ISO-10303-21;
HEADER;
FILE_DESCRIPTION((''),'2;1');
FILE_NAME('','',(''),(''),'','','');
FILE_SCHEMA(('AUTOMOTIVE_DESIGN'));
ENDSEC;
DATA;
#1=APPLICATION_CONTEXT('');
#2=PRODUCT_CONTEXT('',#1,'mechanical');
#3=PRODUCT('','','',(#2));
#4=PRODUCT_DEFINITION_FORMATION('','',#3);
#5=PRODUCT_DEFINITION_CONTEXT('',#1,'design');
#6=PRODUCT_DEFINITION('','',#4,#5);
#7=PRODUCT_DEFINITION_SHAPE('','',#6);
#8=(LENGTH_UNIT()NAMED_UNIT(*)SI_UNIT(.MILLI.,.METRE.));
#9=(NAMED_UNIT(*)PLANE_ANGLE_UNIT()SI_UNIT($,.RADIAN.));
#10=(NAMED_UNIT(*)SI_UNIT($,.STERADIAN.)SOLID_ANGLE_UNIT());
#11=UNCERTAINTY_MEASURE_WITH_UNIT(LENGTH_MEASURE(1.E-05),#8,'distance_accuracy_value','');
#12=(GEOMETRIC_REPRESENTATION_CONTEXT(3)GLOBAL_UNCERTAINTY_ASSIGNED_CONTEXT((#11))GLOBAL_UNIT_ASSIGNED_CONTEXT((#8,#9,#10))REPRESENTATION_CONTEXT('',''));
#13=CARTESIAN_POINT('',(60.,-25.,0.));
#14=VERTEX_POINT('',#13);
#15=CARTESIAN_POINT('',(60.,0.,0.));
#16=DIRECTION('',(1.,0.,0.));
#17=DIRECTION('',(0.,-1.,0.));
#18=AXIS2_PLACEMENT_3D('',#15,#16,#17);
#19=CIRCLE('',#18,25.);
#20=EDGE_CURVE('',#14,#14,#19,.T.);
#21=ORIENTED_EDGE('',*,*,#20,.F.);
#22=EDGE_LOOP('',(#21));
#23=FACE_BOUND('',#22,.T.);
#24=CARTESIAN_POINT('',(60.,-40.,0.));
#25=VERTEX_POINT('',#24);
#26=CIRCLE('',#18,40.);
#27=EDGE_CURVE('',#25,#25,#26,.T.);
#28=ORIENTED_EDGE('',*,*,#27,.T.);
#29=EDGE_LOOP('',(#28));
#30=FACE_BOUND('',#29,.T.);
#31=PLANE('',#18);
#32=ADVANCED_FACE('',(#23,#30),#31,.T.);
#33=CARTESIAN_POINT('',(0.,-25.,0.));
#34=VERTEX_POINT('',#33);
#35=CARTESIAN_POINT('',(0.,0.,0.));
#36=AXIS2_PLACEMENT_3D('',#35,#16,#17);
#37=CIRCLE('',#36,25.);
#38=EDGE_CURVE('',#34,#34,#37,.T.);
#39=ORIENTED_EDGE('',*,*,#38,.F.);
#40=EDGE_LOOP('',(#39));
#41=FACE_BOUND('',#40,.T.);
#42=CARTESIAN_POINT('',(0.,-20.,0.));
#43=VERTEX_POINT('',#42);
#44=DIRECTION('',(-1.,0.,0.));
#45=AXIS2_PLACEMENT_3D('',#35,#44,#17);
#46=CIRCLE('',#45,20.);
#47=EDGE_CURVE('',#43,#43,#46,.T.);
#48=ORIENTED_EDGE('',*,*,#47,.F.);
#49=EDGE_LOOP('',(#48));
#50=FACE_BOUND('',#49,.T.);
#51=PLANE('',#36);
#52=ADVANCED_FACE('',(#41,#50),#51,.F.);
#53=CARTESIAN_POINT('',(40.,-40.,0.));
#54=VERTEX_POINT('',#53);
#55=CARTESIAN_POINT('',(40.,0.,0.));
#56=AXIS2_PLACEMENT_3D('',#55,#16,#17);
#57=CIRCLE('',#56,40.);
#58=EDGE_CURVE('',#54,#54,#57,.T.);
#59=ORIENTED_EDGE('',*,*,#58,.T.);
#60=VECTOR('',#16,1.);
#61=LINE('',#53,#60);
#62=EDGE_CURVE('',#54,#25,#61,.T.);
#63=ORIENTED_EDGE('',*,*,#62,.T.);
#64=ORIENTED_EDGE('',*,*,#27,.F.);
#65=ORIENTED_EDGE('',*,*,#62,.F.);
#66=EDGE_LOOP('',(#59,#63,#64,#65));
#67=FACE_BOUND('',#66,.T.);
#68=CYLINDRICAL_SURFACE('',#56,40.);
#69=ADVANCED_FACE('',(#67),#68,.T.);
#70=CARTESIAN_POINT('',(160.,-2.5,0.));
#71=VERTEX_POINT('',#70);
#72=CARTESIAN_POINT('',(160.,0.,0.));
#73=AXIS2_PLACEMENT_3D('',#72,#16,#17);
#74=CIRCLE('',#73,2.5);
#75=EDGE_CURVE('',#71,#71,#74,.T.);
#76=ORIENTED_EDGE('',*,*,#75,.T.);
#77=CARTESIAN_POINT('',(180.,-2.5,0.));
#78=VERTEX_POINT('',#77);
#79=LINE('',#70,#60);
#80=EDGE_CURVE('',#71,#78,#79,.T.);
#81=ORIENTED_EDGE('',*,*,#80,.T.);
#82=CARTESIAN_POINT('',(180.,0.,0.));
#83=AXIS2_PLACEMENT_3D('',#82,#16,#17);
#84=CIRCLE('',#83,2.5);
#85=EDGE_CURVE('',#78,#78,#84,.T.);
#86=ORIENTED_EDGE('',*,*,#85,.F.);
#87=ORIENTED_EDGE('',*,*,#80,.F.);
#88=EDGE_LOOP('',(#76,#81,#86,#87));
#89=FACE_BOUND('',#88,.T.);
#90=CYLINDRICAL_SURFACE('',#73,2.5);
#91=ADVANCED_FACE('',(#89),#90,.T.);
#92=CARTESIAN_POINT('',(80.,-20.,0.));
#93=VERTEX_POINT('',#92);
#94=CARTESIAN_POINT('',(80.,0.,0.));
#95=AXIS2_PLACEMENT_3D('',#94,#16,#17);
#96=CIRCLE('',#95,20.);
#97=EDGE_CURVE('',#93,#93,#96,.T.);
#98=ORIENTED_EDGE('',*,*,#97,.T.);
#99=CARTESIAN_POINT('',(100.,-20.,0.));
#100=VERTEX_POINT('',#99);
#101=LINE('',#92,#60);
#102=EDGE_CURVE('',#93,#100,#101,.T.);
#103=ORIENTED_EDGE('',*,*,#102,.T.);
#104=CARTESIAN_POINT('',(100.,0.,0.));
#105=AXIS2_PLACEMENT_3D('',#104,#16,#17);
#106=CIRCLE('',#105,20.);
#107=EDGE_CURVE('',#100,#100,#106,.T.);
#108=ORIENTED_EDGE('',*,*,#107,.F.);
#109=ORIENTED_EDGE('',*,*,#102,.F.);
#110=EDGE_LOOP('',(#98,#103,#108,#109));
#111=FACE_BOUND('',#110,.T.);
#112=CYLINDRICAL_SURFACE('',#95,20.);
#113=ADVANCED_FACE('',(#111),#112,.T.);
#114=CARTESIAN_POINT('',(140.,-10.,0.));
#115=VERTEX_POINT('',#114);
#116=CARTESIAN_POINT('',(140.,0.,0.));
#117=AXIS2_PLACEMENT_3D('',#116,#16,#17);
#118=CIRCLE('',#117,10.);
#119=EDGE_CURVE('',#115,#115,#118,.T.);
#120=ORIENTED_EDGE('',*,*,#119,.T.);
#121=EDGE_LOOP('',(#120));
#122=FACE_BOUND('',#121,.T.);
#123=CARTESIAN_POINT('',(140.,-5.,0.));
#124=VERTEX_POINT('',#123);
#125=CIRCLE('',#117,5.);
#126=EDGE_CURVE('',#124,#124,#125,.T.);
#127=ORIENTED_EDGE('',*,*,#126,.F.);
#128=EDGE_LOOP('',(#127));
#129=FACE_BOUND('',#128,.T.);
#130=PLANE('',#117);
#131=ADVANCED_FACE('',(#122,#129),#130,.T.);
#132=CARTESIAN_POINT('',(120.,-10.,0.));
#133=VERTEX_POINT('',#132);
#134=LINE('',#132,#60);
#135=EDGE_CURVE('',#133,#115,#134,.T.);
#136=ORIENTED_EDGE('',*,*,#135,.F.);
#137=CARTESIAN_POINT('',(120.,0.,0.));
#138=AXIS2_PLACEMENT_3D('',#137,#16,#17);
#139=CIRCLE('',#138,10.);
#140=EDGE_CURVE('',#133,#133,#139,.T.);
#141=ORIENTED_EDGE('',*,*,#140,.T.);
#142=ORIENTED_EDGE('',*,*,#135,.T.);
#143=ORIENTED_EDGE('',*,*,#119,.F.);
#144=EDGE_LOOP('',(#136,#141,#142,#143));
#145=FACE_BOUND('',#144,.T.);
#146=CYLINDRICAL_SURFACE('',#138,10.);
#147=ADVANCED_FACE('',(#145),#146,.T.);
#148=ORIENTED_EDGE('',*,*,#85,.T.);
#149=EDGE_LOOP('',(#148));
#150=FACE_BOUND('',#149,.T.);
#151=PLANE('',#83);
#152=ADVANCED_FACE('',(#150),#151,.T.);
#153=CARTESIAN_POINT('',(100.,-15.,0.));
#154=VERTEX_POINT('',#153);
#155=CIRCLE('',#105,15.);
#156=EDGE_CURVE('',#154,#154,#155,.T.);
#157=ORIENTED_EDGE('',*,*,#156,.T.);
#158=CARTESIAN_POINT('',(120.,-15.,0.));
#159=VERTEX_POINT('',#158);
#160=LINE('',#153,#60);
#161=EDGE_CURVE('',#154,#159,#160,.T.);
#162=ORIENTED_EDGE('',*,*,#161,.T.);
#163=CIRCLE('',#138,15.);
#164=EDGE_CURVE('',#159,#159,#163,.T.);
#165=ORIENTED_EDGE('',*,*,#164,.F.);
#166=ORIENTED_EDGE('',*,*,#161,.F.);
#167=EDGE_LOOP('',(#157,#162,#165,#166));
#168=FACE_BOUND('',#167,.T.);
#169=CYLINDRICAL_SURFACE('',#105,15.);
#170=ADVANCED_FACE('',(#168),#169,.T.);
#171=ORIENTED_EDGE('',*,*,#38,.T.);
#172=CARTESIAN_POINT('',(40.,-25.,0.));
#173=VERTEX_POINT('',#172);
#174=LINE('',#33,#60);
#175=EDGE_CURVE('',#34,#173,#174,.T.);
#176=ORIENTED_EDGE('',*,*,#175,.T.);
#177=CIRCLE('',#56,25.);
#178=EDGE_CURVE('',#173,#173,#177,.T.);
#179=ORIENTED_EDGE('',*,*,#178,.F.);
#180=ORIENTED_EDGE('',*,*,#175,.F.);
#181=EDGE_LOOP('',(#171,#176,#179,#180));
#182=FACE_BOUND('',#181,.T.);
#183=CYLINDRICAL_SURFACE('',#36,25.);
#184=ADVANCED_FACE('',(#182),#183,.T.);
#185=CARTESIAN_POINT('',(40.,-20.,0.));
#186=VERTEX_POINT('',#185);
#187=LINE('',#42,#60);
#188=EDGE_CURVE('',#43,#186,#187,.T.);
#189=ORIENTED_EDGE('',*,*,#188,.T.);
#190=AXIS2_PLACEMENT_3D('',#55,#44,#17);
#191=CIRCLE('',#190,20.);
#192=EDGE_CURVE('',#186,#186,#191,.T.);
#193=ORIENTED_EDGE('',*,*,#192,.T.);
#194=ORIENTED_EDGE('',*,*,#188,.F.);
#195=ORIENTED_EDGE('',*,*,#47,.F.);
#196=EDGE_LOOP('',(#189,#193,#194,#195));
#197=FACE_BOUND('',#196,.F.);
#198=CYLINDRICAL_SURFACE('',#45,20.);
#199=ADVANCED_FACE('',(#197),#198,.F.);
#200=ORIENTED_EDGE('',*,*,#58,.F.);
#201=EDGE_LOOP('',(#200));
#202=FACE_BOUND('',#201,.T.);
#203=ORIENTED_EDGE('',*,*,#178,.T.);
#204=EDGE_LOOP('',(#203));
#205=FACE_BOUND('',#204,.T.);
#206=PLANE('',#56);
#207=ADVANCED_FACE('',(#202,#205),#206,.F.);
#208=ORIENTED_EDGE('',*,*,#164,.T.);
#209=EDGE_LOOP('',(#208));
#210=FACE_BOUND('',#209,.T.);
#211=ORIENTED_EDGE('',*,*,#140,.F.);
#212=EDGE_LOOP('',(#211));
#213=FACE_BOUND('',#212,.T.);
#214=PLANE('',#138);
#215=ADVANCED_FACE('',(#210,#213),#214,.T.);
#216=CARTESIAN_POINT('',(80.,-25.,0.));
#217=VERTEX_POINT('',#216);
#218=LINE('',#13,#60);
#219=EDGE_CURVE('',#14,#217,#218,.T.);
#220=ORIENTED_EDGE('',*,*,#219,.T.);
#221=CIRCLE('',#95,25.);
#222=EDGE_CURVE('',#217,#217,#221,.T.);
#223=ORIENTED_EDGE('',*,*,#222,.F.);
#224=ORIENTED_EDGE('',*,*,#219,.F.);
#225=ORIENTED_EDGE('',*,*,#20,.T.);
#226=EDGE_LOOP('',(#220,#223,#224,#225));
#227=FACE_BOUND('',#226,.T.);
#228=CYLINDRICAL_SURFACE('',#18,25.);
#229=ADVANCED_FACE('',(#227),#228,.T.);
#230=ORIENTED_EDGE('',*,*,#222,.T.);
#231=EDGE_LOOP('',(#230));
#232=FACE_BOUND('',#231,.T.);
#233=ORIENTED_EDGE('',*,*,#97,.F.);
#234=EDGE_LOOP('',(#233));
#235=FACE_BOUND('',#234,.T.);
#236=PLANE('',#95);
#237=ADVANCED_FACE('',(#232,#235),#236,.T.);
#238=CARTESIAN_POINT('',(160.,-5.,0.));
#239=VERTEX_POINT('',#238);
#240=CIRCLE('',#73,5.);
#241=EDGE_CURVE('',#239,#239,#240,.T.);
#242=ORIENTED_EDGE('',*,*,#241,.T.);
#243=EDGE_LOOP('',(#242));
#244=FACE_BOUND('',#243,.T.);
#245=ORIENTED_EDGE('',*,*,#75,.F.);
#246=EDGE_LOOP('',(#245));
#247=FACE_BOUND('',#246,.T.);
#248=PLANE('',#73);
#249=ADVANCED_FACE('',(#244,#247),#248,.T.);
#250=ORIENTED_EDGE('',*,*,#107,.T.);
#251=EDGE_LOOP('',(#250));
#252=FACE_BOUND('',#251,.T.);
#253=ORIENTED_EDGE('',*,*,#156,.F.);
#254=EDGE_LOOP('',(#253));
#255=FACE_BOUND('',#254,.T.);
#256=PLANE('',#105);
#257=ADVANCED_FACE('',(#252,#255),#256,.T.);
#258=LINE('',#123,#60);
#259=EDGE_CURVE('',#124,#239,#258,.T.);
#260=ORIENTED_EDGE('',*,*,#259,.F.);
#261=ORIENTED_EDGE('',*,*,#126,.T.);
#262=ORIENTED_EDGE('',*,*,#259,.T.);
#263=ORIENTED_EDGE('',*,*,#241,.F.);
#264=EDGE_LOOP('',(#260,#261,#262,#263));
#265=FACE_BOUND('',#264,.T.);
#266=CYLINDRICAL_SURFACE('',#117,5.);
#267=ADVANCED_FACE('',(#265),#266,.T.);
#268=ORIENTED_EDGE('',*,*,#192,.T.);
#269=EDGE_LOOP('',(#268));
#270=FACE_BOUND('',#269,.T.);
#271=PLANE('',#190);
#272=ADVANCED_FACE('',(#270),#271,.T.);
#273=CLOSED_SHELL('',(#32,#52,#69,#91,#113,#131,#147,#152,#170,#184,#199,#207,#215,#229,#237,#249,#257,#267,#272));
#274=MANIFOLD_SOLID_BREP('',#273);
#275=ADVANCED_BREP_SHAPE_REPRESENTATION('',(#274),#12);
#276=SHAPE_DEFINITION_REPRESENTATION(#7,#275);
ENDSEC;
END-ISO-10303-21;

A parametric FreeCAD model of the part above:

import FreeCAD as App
import Part
import Sketcher

V = App.Vector

doc = App.newDocument("Part")
body = doc.addObject("PartDesign::Body", "Body")

# Sketch on XY plane
sketch1 = body.newObject("Sketcher::SketchObject", "Sketch")
sketch1.AttachmentSupport = (doc.getObject("XY_Plane"), [""])
sketch1.MapMode = "FlatFace"
sketch1.addGeometry([
    Part.LineSegment(V(0, 25, 0), V(0, 0, 0)),  # 0
    Part.LineSegment(V(0, 0, 0), V(180, 0, 0)),  # 1
    Part.LineSegment(V(180, 0, 0), V(180, 2.5, 0)),  # 2
    Part.LineSegment(V(180, 2.5, 0), V(160, 2.5, 0)),  # 3
    Part.LineSegment(V(160, 2.5, 0), V(160, 5, 0)),  # 4
    Part.LineSegment(V(160, 5, 0), V(140, 5, 0)),  # 5
    Part.LineSegment(V(140, 5, 0), V(140, 10, 0)),  # 6
    Part.LineSegment(V(140, 10, 0), V(120, 10, 0)),  # 7
    Part.LineSegment(V(120, 10, 0), V(120, 15, 0)),  # 8
    Part.LineSegment(V(120, 15, 0), V(100, 15, 0)),  # 9
    Part.LineSegment(V(100, 15, 0), V(100, 20, 0)),  # 10
    Part.LineSegment(V(100, 20, 0), V(80, 20, 0)),  # 11
    Part.LineSegment(V(80, 20, 0), V(80, 25, 0)),  # 12
    Part.LineSegment(V(80, 25, 0), V(60, 25, 0)),  # 13
    Part.LineSegment(V(60, 25, 0), V(60, 40, 0)),  # 14
    Part.LineSegment(V(60, 40, 0), V(40, 40, 0)),  # 15
    Part.LineSegment(V(40, 40, 0), V(40, 25, 0)),  # 16
    Part.LineSegment(V(40, 25, 0), V(0, 25, 0)),  # 17
], False)
sketch1.addConstraint([
    Sketcher.Constraint("Coincident", 0, 2, 1, 1),
    Sketcher.Constraint("Coincident", 1, 2, 2, 1),
    Sketcher.Constraint("Coincident", 2, 2, 3, 1),
    Sketcher.Constraint("Coincident", 3, 2, 4, 1),
    Sketcher.Constraint("Coincident", 4, 2, 5, 1),
    Sketcher.Constraint("Coincident", 5, 2, 6, 1),
    Sketcher.Constraint("Coincident", 6, 2, 7, 1),
    Sketcher.Constraint("Coincident", 7, 2, 8, 1),
    Sketcher.Constraint("Coincident", 8, 2, 9, 1),
    Sketcher.Constraint("Coincident", 9, 2, 10, 1),
    Sketcher.Constraint("Coincident", 10, 2, 11, 1),
    Sketcher.Constraint("Coincident", 11, 2, 12, 1),
    Sketcher.Constraint("Coincident", 12, 2, 13, 1),
    Sketcher.Constraint("Coincident", 13, 2, 14, 1),
    Sketcher.Constraint("Coincident", 14, 2, 15, 1),
    Sketcher.Constraint("Coincident", 15, 2, 16, 1),
    Sketcher.Constraint("Coincident", 16, 2, 17, 1),
    Sketcher.Constraint("Coincident", 17, 2, 0, 1),
    Sketcher.Constraint("Vertical", 0),
    Sketcher.Constraint("Horizontal", 1),
    Sketcher.Constraint("Vertical", 2),
    Sketcher.Constraint("Horizontal", 3),
    Sketcher.Constraint("Vertical", 4),
    Sketcher.Constraint("Horizontal", 5),
    Sketcher.Constraint("Vertical", 6),
    Sketcher.Constraint("Horizontal", 7),
    Sketcher.Constraint("Vertical", 8),
    Sketcher.Constraint("Horizontal", 9),
    Sketcher.Constraint("Vertical", 10),
    Sketcher.Constraint("Horizontal", 11),
    Sketcher.Constraint("Vertical", 12),
    Sketcher.Constraint("Horizontal", 13),
    Sketcher.Constraint("Vertical", 14),
    Sketcher.Constraint("Horizontal", 15),
    Sketcher.Constraint("Vertical", 16),
    Sketcher.Constraint("Horizontal", 17),
    Sketcher.Constraint("Coincident", 0, 2, -1, 1),
    Sketcher.Constraint("Horizontal", 13, 2, 16, 2),
    Sketcher.Constraint("Equal", 3, 5),
    Sketcher.Constraint("Equal", 5, 7),
    Sketcher.Constraint("Equal", 7, 9),
    Sketcher.Constraint("Equal", 9, 11),
    Sketcher.Constraint("Equal", 11, 13),
    Sketcher.Constraint("Equal", 13, 15),
    Sketcher.Constraint("Equal", 2, 4),
    Sketcher.Constraint("Equal", 6, 8),
    Sketcher.Constraint("Equal", 8, 10),
    Sketcher.Constraint("Equal", 10, 12),
    Sketcher.Constraint("DistanceX", 1, 1, 1, 2, 180.0),
    Sketcher.Constraint("DistanceX", 3, 2, 3, 1, 20.0),
    Sketcher.Constraint("DistanceY", 0, 2, 0, 1, 25.0),
    Sketcher.Constraint("DistanceY", 6, 1, 6, 2, 5.0),
    Sketcher.Constraint("DistanceY", 14, 1, 14, 2, 15.0),
])
revolution = body.newObject("PartDesign::Revolution", "Revolution")
revolution.Profile = sketch1
revolution.ReferenceAxis = (sketch1, ["H_Axis"])
revolution.Angle = 360

# Sketch on YZ plane
sketch2 = body.newObject("Sketcher::SketchObject", "Sketch001")
sketch2.AttachmentSupport = (doc.getObject("YZ_Plane"), [""])
sketch2.MapMode = "FlatFace"
sketch2.addGeometry(Part.Circle(V(0, 0, 0), V(0, 0, 1), 20), False)
sketch2.addConstraint([
    Sketcher.Constraint("Coincident", 0, 3, -1, 1),
    Sketcher.Constraint("Diameter", 0, 40.0),
])
pocket1 = body.newObject("PartDesign::Pocket", "Pocket")
pocket1.Profile = sketch2
pocket1.Length = 40
pocket1.Reversed = True

doc.recompute()
